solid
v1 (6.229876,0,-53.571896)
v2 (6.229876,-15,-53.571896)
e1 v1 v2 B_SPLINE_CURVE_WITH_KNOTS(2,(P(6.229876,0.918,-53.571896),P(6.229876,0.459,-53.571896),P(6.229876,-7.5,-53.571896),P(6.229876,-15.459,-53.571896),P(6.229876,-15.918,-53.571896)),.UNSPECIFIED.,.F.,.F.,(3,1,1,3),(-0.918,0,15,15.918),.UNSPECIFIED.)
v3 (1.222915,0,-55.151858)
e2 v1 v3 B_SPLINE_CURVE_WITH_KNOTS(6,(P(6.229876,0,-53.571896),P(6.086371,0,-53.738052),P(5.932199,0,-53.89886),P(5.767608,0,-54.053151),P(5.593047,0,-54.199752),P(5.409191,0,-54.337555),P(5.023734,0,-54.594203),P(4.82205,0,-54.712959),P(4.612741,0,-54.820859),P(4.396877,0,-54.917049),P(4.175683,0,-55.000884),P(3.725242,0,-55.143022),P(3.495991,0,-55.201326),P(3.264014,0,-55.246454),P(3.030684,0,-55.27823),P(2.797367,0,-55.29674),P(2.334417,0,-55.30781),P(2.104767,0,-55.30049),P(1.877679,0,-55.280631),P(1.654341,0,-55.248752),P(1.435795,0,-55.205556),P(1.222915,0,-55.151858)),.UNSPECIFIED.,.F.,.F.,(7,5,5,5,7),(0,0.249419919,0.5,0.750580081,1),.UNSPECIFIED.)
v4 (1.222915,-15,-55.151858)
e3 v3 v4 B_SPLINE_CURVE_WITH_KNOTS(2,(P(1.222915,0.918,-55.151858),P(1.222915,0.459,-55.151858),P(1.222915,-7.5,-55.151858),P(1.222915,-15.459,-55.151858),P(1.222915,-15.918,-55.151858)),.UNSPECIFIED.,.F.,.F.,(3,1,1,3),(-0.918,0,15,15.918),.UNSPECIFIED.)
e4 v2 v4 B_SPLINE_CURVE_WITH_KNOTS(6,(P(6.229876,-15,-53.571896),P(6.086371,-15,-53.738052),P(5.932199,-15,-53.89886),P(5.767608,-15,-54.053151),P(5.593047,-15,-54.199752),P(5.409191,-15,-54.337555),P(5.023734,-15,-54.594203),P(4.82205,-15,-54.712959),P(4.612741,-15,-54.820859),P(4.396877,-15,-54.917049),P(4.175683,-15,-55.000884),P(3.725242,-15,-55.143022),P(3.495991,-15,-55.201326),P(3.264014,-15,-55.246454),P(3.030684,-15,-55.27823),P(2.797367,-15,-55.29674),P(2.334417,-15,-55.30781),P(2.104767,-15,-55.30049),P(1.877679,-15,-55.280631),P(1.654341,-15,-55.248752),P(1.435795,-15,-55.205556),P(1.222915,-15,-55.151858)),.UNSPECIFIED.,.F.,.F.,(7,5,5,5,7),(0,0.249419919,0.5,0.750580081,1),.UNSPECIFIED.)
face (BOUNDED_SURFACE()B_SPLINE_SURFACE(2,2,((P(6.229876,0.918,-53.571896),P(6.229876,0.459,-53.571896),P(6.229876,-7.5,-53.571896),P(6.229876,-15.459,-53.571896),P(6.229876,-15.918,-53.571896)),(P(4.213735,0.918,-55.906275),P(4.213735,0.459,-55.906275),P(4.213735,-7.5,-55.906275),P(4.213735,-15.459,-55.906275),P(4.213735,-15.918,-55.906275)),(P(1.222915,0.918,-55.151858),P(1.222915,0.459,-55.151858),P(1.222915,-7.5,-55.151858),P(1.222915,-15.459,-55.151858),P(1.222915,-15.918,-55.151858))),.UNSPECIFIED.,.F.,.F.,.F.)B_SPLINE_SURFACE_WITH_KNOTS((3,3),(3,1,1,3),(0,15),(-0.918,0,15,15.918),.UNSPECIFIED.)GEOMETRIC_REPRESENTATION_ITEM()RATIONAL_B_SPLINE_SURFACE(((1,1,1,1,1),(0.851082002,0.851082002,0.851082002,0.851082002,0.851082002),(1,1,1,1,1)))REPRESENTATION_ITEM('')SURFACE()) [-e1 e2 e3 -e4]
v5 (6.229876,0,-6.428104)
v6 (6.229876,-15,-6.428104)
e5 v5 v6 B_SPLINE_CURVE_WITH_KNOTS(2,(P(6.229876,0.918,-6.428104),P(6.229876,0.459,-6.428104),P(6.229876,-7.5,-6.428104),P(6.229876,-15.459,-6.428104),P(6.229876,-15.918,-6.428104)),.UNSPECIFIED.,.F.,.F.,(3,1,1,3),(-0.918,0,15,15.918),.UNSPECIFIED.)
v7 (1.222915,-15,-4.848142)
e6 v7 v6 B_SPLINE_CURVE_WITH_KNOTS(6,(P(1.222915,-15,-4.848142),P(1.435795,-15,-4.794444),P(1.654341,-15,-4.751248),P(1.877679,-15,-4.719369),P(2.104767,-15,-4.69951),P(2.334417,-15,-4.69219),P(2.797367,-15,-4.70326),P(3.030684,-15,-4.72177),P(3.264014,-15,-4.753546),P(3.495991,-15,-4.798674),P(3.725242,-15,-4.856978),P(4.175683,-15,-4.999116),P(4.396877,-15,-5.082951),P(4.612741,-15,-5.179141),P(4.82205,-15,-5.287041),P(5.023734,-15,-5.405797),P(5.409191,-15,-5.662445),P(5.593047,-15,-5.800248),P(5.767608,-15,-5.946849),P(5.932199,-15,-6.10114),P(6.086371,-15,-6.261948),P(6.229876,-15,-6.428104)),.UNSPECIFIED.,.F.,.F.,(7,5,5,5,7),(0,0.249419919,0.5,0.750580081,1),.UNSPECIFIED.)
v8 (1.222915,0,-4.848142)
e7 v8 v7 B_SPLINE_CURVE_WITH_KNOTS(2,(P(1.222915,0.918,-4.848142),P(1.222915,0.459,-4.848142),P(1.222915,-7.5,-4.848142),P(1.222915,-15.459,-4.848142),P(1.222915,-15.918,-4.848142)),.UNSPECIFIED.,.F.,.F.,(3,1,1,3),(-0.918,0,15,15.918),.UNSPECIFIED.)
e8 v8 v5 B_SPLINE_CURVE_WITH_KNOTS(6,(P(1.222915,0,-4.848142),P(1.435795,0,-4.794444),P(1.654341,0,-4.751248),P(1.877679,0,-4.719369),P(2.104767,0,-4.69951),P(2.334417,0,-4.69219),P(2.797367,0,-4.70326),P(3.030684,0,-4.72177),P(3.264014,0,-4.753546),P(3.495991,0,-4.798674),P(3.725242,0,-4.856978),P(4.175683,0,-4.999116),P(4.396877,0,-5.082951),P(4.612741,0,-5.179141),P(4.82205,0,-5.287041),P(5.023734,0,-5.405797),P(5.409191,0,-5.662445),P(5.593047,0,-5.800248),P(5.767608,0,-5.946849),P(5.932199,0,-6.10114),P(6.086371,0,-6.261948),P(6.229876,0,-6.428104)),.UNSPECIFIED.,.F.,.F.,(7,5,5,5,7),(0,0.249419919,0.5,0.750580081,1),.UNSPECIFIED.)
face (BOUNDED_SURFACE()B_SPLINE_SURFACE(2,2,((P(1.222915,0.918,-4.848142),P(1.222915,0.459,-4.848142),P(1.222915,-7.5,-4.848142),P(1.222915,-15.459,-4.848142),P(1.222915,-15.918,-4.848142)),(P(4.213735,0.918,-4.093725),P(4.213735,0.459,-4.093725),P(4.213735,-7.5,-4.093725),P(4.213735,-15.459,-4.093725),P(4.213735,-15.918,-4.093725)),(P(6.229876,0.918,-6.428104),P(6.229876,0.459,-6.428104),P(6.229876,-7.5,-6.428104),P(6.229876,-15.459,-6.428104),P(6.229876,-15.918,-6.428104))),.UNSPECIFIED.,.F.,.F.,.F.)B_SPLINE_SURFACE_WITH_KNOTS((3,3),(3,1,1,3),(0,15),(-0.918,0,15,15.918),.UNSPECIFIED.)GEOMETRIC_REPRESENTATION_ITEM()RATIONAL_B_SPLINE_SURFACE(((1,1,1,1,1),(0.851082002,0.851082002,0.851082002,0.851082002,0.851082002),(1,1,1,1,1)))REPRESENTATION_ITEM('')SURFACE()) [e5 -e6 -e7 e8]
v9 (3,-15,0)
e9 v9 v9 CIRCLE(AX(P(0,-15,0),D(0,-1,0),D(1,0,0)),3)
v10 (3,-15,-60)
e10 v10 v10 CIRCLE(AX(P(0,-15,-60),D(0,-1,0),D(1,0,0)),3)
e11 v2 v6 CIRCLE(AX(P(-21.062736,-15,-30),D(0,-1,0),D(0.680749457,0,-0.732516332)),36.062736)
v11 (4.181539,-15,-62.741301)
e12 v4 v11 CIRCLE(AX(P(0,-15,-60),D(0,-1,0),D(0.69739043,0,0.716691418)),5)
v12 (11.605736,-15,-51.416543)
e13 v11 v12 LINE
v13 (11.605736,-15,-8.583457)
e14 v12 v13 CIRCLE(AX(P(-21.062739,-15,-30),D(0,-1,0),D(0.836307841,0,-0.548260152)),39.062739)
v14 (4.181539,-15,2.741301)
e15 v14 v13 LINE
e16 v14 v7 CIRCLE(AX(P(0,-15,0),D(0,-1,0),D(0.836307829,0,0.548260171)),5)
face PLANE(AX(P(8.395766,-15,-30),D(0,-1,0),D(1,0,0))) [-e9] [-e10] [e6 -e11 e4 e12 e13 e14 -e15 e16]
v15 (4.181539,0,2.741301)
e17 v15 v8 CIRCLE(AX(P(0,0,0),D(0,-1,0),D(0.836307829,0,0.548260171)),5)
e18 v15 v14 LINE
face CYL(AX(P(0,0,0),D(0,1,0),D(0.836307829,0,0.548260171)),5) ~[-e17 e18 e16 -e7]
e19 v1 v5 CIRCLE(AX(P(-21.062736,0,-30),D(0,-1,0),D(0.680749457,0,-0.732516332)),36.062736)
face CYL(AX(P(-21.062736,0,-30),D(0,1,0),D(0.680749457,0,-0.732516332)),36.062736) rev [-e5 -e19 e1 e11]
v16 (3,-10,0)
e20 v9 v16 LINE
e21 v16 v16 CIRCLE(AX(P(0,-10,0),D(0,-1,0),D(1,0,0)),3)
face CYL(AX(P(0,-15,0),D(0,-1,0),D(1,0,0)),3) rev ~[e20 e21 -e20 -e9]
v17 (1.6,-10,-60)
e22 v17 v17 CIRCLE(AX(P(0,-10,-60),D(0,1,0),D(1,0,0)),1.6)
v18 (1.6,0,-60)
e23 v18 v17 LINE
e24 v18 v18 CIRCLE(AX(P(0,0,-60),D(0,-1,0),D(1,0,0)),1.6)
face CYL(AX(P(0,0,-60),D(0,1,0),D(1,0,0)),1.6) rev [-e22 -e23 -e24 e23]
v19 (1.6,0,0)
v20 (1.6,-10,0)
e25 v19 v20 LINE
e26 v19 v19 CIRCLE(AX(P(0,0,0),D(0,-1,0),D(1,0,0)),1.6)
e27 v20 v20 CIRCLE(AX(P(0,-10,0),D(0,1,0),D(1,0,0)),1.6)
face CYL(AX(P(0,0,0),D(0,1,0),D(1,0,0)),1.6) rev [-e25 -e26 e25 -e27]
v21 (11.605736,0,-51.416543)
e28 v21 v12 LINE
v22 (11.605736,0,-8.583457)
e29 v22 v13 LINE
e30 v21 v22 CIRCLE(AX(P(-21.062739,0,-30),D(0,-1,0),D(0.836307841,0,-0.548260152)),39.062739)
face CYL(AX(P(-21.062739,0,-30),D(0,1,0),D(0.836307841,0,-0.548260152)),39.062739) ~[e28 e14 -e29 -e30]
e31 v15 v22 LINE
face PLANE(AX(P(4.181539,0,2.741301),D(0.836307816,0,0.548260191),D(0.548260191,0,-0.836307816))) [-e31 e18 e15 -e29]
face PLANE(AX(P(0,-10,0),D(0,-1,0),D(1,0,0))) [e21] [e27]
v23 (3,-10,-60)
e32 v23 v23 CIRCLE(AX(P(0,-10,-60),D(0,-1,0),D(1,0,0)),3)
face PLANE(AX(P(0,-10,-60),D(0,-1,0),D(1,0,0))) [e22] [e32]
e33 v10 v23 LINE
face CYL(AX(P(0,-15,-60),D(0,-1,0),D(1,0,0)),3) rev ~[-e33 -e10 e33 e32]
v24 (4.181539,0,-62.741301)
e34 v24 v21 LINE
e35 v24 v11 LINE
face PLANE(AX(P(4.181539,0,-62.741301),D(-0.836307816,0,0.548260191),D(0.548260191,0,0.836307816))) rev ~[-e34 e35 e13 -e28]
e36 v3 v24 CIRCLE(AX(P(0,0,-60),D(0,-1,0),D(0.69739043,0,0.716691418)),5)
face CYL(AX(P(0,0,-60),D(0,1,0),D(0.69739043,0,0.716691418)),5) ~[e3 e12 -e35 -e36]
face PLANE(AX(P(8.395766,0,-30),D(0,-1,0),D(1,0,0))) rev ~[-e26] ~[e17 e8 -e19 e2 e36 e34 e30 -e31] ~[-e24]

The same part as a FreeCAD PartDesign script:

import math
import FreeCAD as App
import Part
import Sketcher

V = App.Vector


def edges_at(feature, points):
    """Names of the edges that pass closest to the given points."""
    edges = feature.Shape.Edges
    near = lambda p: min(range(len(edges)), key=lambda i: edges[i].distToShape(Part.Vertex(*p))[0])
    return sorted({f"Edge{near(p) + 1}" for p in points})

doc = App.newDocument("Part")
body = doc.addObject("PartDesign::Body", "Body")

sketch1 = body.newObject("Sketcher::SketchObject", "Sketch")
sketch1.AttachmentSupport = (doc.getObject("XZ_Plane"), [""])
sketch1.MapMode = "FlatFace"
sketch1.addGeometry(Part.ArcOfCircle(Part.Circle(V(0, 0, 0), V(0, 0, 1), 5), math.radians(33), math.radians(314)), False)
sketch1.addGeometry(Part.ArcOfCircle(Part.Circle(V(-21.1, -30, 0), V(0, 0, 1), 36.1), math.radians(-47), math.radians(47)), False)
sketch1.addGeometry(Part.ArcOfCircle(Part.Circle(V(0, -60, 0), V(0, 0, 1), 5), math.radians(46), math.radians(327)), False)
sketch1.addGeometry(Part.LineSegment(V(4.2, -62.7, 0), V(11.6, -51.4, 0)), False)
sketch1.addGeometry(Part.ArcOfCircle(Part.Circle(V(-21.1, -30, 0), V(0, 0, 1), 39.1), math.radians(-33), math.radians(33)), False)
sketch1.addGeometry(Part.LineSegment(V(11.6, -8.6, 0), V(4.2, 2.7, 0)), False)
sketch1.addGeometry(Part.Circle(V(0, -60, 0), V(0, 0, 1), 1.6), False)
sketch1.addGeometry(Part.Circle(V(0, 0, 0), V(0, 0, 1), 1.6), False)
sketch1.addConstraint(Sketcher.Constraint("Coincident", 0, 2, 1, 2))
sketch1.addConstraint(Sketcher.Constraint("Coincident", 1, 1, 2, 1))
sketch1.addConstraint(Sketcher.Constraint("Tangent", 2, 2, 3, 1))
sketch1.addConstraint(Sketcher.Constraint("Tangent", 3, 2, 4, 1))
sketch1.addConstraint(Sketcher.Constraint("Tangent", 4, 2, 5, 1))
sketch1.addConstraint(Sketcher.Constraint("Tangent", 5, 2, 0, 1))
sketch1.addConstraint(Sketcher.Constraint("Coincident", 0, 3, -1, 1))
sketch1.addConstraint(Sketcher.Constraint("Coincident", 7, 3, -1, 1))
sketch1.addConstraint(Sketcher.Constraint("Coincident", 4, 3, 1, 3))
sketch1.addConstraint(Sketcher.Constraint("Coincident", 6, 3, 2, 3))
sketch1.addConstraint(Sketcher.Constraint("Equal", 0, 2))
sketch1.addConstraint(Sketcher.Constraint("Equal", 6, 7))
sketch1.addConstraint(Sketcher.Constraint("PointOnObject", 2, 3, -2))
sketch1.addConstraint(Sketcher.Constraint("Vertical", 0, 2, 1, 1))
sketch1.addConstraint(Sketcher.Constraint("Radius", 0, 5.0))
sketch1.addConstraint(Sketcher.Constraint("Diameter", 6, 3.2))
sketch1.addConstraint(Sketcher.Constraint("DistanceY", 1, 3, -1, 1, 30.0))
sketch1.addConstraint(Sketcher.Constraint("DistanceY", 1, 1, 3, 2, 5.0))
sketch1.addConstraint(Sketcher.Constraint("Radius", 4, 39.062739))
sketch1.addConstraint(Sketcher.Constraint("Radius", 1, 36.062736))
pad1 = body.newObject("PartDesign::Pad", "Pad")
pad1.Profile = sketch1
pad1.Length = 15
doc.recompute()

fillet = body.newObject("PartDesign::Fillet", "Fillet")
fillet.Base = (pad1, edges_at(pad1, [(3.487, -7.5, -3.583), (3.487, -7.5, -56.417)]))
fillet.Radius = 5

sketch2 = body.newObject("Sketcher::SketchObject", "Sketch001")
sketch2.AttachmentSupport = (doc.getObject("XZ_Plane"), [""])
sketch2.MapMode = "FlatFace"
sketch2.AttachmentOffset = App.Placement(V(0, 0, 15), App.Rotation())
sketch2.addGeometry(Part.Circle(V(0, 0, 0), V(0, 0, 1), 3), False)
sketch2.addGeometry(Part.Circle(V(0, -60, 0), V(0, 0, 1), 3), False)
sketch2.addConstraint(Sketcher.Constraint("Coincident", 0, 3, -1, 1))
sketch2.addConstraint(Sketcher.Constraint("Equal", 0, 1))
sketch2.addConstraint(Sketcher.Constraint("PointOnObject", 1, 3, -2))
sketch2.addConstraint(Sketcher.Constraint("Diameter", 0, 6.0))
sketch2.addConstraint(Sketcher.Constraint("DistanceY", 1, 3, -1, 1, 60.0))
pocket1 = body.newObject("PartDesign::Pocket", "Pocket")
pocket1.Profile = sketch2
pocket1.Length = 5

doc.recompute()
